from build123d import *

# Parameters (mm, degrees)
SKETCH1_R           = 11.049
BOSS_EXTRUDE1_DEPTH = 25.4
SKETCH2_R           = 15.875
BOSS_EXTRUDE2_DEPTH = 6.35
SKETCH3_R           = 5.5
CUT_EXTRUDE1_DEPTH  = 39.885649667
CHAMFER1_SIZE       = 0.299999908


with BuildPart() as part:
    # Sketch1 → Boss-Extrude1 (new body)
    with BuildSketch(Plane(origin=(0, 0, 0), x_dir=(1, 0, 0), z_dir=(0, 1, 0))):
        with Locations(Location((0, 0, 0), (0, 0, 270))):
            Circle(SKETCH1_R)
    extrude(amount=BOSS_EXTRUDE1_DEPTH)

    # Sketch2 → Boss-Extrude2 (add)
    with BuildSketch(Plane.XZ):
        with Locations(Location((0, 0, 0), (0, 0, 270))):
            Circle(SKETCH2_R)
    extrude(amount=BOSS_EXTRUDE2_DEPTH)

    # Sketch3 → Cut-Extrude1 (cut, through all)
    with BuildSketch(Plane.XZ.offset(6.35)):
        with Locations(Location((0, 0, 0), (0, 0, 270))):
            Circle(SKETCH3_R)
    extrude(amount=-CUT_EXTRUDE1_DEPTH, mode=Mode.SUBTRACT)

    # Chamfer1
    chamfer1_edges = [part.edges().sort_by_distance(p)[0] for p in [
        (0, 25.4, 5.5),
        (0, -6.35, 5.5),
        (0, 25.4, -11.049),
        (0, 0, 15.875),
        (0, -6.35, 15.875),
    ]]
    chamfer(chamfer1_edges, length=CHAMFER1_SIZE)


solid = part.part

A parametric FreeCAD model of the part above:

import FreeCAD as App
import Part
import Sketcher
from FreeCAD import Vector
Q = App.Units.Quantity


def edges_at(feature, points):
    """Names of the edges that pass closest to the given points."""
    edges = feature.Shape.Edges
    near = lambda p: min(range(len(edges)), key=lambda i: edges[i].distToShape(Part.Vertex(*p))[0])
    return sorted({f"Edge{near(p) + 1}" for p in points})

doc = App.newDocument("Part")
body = doc.addObject("PartDesign::Body", "Body")

# Sketch on XZ plane
sketch1 = body.newObject("Sketcher::SketchObject", "Sketch")
sketch1.AttachmentSupport = (doc.getObject("XZ_Plane"), [""])
sketch1.MapMode = "FlatFace"
sketch1.addGeometry(Part.Circle(Vector(0, 0, 0), Vector(0, 0, 1), 11), False)
sketch1.addConstraint([
    Sketcher.Constraint("Coincident", 0, 3, -1, 1),
    Sketcher.Constraint("Diameter", 0, Q("0.87 in")),
])
pad1 = body.newObject("PartDesign::Pad", "Pad")
pad1.Profile = sketch1
pad1.Length = Q("1 in")
pad1.Reversed = True

# Sketch on XZ plane
sketch2 = body.newObject("Sketcher::SketchObject", "Sketch001")
sketch2.AttachmentSupport = (doc.getObject("XZ_Plane"), [""])
sketch2.MapMode = "FlatFace"
sketch2.addGeometry(Part.Circle(Vector(0, 0, 0), Vector(0, 0, 1), 16), False)
sketch2.addConstraint([
    Sketcher.Constraint("Coincident", 0, 3, -1, 1),
    Sketcher.Constraint("Diameter", 0, Q("1.25 in")),
])
pad2 = body.newObject("PartDesign::Pad", "Pad001")
pad2.Profile = sketch2
pad2.Length = Q("0.25 in")

# Sketch on XZ plane
sketch3 = body.newObject("Sketcher::SketchObject", "Sketch002")
sketch3.AttachmentSupport = (doc.getObject("XZ_Plane"), [""])
sketch3.MapMode = "FlatFace"
sketch3.AttachmentOffset = App.Placement(Vector(0, 0, 0.25 * 25.4), App.Rotation())
sketch3.addGeometry(Part.Circle(Vector(0, 0, 0), Vector(0, 0, 1), 6), False)
sketch3.addConstraint([
    Sketcher.Constraint("Coincident", 0, 3, -1, 1),
    Sketcher.Constraint("Diameter", 0, Q("11 mm")),
])
pocket1 = body.newObject("PartDesign::Pocket", "Pocket")
pocket1.Profile = sketch3
pocket1.Type = "ThroughAll"
doc.recompute()

chamfer = body.newObject("PartDesign::Chamfer", "Chamfer")
chamfer.Base = (pocket1, edges_at(pocket1, [
    (0, 25.4, 5.5),
    (0, -6.35, 5.5),
    (0, 25.4, -11.049),
    (0, 0, 15.875),
    (0, -6.35, 15.875),
]))
chamfer.Size = 0.3

doc.recompute()
